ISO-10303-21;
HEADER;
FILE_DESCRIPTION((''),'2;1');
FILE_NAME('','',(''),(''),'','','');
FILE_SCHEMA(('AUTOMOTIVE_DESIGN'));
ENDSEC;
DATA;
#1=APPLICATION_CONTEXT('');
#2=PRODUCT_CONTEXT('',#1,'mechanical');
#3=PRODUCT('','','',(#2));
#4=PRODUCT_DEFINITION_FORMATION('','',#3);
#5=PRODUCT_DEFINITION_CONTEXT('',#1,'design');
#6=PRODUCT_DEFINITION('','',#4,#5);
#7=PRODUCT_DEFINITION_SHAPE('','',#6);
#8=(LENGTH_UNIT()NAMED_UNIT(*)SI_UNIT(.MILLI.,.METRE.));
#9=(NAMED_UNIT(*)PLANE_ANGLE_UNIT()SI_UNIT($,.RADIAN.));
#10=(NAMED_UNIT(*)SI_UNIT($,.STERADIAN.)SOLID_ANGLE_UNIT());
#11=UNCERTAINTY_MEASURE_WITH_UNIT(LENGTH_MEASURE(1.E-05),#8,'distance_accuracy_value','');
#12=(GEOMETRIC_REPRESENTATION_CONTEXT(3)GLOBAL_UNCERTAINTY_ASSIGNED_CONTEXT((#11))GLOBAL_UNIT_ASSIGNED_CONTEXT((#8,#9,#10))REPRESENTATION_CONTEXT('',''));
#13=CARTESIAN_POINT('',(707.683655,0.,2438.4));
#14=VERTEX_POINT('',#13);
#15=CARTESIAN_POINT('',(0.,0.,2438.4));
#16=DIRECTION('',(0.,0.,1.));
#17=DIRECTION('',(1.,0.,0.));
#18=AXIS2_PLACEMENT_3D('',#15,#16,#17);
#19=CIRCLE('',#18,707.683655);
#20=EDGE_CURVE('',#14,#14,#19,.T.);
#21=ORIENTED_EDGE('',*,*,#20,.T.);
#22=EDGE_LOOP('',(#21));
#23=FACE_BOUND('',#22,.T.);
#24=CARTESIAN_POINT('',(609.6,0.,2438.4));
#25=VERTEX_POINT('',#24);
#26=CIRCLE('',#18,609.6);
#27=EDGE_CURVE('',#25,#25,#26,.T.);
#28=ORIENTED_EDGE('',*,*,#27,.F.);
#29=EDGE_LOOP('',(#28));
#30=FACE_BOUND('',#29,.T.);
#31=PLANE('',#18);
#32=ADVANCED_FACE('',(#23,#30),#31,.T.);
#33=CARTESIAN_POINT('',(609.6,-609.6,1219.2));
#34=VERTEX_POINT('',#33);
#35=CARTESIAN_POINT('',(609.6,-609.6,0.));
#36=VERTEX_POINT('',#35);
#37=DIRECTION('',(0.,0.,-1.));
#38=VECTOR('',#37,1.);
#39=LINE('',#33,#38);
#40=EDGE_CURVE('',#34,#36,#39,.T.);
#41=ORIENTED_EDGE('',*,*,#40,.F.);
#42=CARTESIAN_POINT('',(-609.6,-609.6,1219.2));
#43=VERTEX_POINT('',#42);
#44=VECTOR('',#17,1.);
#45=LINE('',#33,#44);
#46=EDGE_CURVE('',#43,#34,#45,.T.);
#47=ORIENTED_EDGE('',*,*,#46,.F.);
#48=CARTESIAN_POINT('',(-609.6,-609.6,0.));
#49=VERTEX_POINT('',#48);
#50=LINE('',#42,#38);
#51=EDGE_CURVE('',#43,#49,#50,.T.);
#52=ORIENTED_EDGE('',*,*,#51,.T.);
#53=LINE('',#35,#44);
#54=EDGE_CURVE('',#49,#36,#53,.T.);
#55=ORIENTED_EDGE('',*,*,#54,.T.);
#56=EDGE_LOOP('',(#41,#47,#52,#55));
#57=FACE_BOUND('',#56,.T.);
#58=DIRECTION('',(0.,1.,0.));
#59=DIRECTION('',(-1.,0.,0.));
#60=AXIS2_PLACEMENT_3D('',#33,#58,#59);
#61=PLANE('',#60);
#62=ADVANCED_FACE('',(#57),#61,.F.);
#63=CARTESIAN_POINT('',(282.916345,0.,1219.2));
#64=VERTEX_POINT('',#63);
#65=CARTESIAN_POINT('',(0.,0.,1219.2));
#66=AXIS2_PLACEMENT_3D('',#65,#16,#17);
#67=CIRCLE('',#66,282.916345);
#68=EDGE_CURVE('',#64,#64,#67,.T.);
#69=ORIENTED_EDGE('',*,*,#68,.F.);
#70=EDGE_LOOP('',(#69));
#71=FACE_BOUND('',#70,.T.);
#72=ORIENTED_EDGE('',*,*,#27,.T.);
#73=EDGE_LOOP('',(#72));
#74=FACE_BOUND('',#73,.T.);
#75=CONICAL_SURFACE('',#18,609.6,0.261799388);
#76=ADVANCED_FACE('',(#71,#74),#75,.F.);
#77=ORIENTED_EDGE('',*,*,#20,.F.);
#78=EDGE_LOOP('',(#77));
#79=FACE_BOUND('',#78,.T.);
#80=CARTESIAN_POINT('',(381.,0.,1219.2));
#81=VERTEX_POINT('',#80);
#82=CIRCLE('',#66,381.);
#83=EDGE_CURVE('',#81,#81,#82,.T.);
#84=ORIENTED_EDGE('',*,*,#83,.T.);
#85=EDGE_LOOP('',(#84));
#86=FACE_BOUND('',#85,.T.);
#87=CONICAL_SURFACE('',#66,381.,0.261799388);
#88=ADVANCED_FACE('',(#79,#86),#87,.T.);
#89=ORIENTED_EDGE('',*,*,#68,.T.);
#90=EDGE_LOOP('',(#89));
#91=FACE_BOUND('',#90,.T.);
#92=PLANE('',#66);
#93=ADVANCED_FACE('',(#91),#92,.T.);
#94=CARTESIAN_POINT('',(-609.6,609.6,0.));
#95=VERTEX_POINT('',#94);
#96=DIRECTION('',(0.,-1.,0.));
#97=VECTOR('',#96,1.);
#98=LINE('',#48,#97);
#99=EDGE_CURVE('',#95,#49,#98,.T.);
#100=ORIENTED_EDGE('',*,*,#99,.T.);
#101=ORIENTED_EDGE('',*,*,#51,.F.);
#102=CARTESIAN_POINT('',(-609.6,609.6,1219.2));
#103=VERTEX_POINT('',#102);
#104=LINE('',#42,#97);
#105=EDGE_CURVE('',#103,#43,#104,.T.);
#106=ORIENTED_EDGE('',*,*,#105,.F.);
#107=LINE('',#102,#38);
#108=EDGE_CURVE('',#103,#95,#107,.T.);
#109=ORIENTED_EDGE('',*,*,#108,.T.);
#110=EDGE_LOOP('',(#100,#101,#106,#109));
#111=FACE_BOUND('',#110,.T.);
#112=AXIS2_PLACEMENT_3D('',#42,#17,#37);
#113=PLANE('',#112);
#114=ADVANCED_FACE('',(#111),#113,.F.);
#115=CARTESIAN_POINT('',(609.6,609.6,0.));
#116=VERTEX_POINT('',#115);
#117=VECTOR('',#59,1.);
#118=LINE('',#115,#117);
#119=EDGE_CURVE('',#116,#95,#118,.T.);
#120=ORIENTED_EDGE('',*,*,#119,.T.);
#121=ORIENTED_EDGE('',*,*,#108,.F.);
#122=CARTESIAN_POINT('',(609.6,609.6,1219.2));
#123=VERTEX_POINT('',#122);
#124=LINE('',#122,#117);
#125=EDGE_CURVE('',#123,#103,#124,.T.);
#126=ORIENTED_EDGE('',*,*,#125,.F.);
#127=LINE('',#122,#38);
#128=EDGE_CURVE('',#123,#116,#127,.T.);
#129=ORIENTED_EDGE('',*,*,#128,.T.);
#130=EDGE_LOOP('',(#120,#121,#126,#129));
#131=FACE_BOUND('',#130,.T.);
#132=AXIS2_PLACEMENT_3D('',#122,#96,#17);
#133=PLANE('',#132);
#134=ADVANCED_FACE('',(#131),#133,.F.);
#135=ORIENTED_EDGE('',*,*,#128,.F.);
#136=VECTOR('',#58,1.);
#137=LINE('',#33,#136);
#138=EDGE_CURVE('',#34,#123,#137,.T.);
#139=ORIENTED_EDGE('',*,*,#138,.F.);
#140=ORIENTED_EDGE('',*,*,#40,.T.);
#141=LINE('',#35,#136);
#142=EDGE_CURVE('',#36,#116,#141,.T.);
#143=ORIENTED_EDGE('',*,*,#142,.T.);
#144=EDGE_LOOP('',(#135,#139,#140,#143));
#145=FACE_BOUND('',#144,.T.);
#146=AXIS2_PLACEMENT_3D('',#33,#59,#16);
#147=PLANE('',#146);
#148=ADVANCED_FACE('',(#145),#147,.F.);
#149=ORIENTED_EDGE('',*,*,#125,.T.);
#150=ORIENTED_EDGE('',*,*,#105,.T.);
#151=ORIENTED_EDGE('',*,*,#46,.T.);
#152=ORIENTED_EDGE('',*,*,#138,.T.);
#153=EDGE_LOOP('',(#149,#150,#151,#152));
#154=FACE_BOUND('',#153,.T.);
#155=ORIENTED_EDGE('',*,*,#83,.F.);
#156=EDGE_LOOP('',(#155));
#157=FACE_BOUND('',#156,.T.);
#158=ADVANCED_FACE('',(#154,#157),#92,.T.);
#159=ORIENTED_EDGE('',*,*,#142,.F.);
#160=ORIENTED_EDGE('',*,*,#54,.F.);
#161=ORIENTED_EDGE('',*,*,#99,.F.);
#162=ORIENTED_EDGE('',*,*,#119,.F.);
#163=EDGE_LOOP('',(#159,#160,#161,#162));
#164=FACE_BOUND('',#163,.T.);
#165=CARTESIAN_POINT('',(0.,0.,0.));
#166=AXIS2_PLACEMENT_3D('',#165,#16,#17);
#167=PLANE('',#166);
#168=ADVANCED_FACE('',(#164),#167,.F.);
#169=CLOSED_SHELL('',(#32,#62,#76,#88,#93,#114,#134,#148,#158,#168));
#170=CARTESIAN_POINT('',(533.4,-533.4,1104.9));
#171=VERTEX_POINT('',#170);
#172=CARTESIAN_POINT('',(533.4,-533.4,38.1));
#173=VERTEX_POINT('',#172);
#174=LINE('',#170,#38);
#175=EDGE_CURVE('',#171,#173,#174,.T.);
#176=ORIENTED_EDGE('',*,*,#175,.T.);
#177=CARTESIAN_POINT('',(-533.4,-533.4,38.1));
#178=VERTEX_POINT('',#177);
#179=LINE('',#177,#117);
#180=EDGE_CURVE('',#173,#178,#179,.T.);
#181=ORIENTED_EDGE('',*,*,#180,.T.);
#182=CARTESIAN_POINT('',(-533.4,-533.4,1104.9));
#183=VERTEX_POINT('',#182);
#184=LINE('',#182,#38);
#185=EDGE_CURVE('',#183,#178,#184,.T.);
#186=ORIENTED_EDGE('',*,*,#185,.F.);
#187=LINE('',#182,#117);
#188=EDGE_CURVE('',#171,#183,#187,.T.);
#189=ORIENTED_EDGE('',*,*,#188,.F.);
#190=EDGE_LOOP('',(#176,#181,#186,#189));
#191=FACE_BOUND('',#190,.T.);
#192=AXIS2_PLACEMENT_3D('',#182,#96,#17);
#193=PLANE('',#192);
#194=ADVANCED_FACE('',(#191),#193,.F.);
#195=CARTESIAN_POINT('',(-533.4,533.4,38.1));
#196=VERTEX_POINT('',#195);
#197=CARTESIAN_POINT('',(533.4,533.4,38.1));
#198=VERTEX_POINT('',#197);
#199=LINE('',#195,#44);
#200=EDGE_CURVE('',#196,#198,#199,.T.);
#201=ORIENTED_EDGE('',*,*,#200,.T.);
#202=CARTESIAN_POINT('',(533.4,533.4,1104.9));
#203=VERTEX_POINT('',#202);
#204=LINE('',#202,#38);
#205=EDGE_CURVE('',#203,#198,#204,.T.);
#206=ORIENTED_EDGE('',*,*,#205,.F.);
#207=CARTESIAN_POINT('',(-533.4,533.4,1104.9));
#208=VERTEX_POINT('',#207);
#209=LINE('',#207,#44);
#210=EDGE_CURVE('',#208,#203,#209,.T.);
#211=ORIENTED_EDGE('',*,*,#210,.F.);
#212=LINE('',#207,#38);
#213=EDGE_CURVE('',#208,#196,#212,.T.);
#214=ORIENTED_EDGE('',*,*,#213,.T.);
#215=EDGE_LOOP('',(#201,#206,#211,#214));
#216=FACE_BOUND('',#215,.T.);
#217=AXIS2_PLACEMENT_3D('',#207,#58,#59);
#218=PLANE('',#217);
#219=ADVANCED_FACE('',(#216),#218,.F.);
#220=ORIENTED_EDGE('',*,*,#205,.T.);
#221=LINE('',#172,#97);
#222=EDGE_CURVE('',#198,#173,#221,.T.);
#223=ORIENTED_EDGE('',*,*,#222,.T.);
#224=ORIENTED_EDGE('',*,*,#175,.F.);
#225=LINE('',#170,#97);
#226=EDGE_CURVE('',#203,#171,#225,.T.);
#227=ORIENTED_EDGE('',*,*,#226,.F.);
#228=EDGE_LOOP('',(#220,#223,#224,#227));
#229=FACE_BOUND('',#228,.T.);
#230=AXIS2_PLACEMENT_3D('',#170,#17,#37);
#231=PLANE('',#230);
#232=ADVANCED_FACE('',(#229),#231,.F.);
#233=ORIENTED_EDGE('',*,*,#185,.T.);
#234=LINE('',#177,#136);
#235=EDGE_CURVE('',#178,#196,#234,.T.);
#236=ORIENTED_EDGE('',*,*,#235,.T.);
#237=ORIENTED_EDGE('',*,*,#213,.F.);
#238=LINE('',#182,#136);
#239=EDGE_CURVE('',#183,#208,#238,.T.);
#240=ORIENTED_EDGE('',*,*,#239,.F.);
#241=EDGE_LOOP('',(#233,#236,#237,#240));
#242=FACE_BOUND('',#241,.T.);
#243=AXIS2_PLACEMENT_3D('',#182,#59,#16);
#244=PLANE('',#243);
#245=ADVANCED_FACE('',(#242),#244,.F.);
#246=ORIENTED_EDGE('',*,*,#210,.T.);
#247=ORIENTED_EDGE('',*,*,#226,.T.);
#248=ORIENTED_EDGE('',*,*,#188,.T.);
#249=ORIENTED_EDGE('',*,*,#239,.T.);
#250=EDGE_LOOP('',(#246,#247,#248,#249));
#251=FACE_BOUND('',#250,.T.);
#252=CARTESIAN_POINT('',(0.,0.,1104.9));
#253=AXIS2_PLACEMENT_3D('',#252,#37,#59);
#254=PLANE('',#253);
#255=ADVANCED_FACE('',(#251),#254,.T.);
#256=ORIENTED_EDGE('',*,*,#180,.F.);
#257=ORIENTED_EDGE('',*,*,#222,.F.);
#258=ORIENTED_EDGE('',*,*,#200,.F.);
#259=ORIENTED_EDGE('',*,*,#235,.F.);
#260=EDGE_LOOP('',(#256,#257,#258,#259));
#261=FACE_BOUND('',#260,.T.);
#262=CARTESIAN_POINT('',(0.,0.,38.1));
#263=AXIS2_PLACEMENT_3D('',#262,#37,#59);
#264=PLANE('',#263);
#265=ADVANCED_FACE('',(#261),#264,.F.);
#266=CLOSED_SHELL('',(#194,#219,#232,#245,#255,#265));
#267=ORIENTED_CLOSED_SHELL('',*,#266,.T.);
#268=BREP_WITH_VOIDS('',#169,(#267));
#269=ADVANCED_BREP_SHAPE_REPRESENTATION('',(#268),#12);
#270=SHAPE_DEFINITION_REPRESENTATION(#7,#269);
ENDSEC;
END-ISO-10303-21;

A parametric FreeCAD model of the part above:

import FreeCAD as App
import Part
import Sketcher
from FreeCAD import Vector
Q = App.Units.Quantity


def faces_at(feature, points):
    """Names of the faces that lie closest to the given points."""
    faces = feature.Shape.Faces
    near = lambda p: min(range(len(faces)), key=lambda i: faces[i].distToShape(Part.Vertex(*p))[0])
    return sorted({f"Face{near(p) + 1}" for p in points})

doc = App.newDocument("Part")
body = doc.addObject("PartDesign::Body", "Body")

# Sketch on XY plane
sketch1 = body.newObject("Sketcher::SketchObject", "Sketch")
sketch1.AttachmentSupport = (doc.getObject("XY_Plane"), [""])
sketch1.MapMode = "FlatFace"
sketch1.addGeometry(Part.LineSegment(Vector(-609.6, 609.6, 0), Vector(-609.6, -609.6, 0)), False)
sketch1.addGeometry(Part.LineSegment(Vector(-609.6, -609.6, 0), Vector(609.6, -609.6, 0)), False)
sketch1.addGeometry(Part.LineSegment(Vector(609.6, -609.6, 0), Vector(609.6, 609.6, 0)), False)
sketch1.addGeometry(Part.LineSegment(Vector(609.6, 609.6, 0), Vector(-609.6, 609.6, 0)), False)
sketch1.addConstraint(Sketcher.Constraint("Coincident", 0, 2, 1, 1))
sketch1.addConstraint(Sketcher.Constraint("Coincident", 1, 2, 2, 1))
sketch1.addConstraint(Sketcher.Constraint("Coincident", 2, 2, 3, 1))
sketch1.addConstraint(Sketcher.Constraint("Coincident", 3, 2, 0, 1))
sketch1.addConstraint(Sketcher.Constraint("Vertical", 0))
sketch1.addConstraint(Sketcher.Constraint("Horizontal", 1))
sketch1.addConstraint(Sketcher.Constraint("Vertical", 2))
sketch1.addConstraint(Sketcher.Constraint("Horizontal", 3))
sketch1.addConstraint(Sketcher.Constraint("Symmetric", 0, 2, 2, 2, -1, 1))
sketch1.addConstraint(Sketcher.Constraint("Equal", 3, 0))
sketch1.addConstraint(Sketcher.Constraint("DistanceX", 1, 1, 1, 2, Q("48 in")))
pad1 = body.newObject("PartDesign::Pad", "Pad")
pad1.Profile = sketch1
pad1.Length = Q("48 in")
body2 = doc.addObject("PartDesign::Body", "Body001")

# Sketch on XY plane
sketch2 = body2.newObject("Sketcher::SketchObject", "Sketch001")
sketch2.AttachmentSupport = (doc.getObject("XY_Plane001"), [""])
sketch2.MapMode = "FlatFace"
sketch2.AttachmentOffset = App.Placement(Vector(0, 0, 48 * 25.4), App.Rotation())
sketch2.addGeometry(Part.Circle(Vector(0, 0, 0), Vector(0, 0, 1), 381), False)
sketch2.addConstraint(Sketcher.Constraint("Coincident", 0, 3, -1, 1))
sketch2.addConstraint(Sketcher.Constraint("Diameter", 0, Q("30 in")))
pad2 = body2.newObject("PartDesign::Pad", "Pad001")
pad2.Profile = sketch2
pad2.Length = Q("48 in")
doc.recompute()

datumplane = body2.newObject("PartDesign::Plane", "DatumPlane")
datumplane.AttachmentSupport = (doc.getObject("XY_Plane001"), [""])
datumplane.MapMode = "FlatFace"
datumplane.AttachmentOffset = App.Placement(Vector(0, 0, 48 * 25.4), App.Rotation())
draft = body2.newObject("PartDesign::Draft", "Draft")
draft.Base = (pad2, faces_at(pad2, [(-381, 0, 1828.8)]))
draft.NeutralPlane = (datumplane, [""])
draft.Angle = 15
draft.Reversed = True
doc.recompute()

boolean = body.newObject("PartDesign::Boolean", "Boolean")
boolean.Type = "Fuse"
boolean.addObjects([body2])
body3 = doc.addObject("PartDesign::Body", "Body002")

# Sketch on XY plane
sketch3 = body3.newObject("Sketcher::SketchObject", "Sketch002")
sketch3.AttachmentSupport = (doc.getObject("XY_Plane002"), [""])
sketch3.MapMode = "FlatFace"
sketch3.AttachmentOffset = App.Placement(Vector(0, 0, 96 * 25.4), App.Rotation())
sketch3.addGeometry(Part.Circle(Vector(0, 0, 0), Vector(0, 0, 1), 609.6), False)
sketch3.addConstraint(Sketcher.Constraint("Coincident", 0, 3, -1, 1))
sketch3.addConstraint(Sketcher.Constraint("Diameter", 0, Q("48 in")))
pad3 = body3.newObject("PartDesign::Pad", "Pad002")
pad3.Profile = sketch3
pad3.Length = Q("48 in")
pad3.Reversed = True
doc.recompute()

datumplane2 = body3.newObject("PartDesign::Plane", "DatumPlane001")
datumplane2.AttachmentSupport = (doc.getObject("XY_Plane002"), [""])
datumplane2.MapMode = "FlatFace"
datumplane2.AttachmentOffset = App.Placement(Vector(0, 0, 96 * 25.4), App.Rotation())
draft2 = body3.newObject("PartDesign::Draft", "Draft001")
draft2.Base = (pad3, faces_at(pad3, [(-609.6, 0, 1828.8)]))
draft2.NeutralPlane = (datumplane2, [""])
draft2.Angle = 15
draft2.Reversed = True
doc.recompute()

boolean2 = body.newObject("PartDesign::Boolean", "Boolean001")
boolean2.Type = "Cut"
boolean2.addObjects([body3])

# Sketch on XY plane
sketch4 = body.newObject("Sketcher::SketchObject", "Sketch003")
sketch4.AttachmentSupport = (doc.getObject("XY_Plane"), [""])
sketch4.MapMode = "FlatFace"
sketch4.AttachmentOffset = App.Placement(Vector(0, 0, 1.5 * 25.4), App.Rotation())
sketch4.addGeometry(Part.LineSegment(Vector(533.4, 533.4, 0), Vector(533.4, -533.4, 0)), False)
sketch4.addGeometry(Part.LineSegment(Vector(533.4, -533.4, 0), Vector(-533.4, -533.4, 0)), False)
sketch4.addGeometry(Part.LineSegment(Vector(-533.4, -533.4, 0), Vector(-533.4, 533.4, 0)), False)
sketch4.addGeometry(Part.LineSegment(Vector(-533.4, 533.4, 0), Vector(533.4, 533.4, 0)), False)
sketch4.addConstraint(Sketcher.Constraint("Coincident", 0, 2, 1, 1))
sketch4.addConstraint(Sketcher.Constraint("Coincident", 1, 2, 2, 1))
sketch4.addConstraint(Sketcher.Constraint("Coincident", 2, 2, 3, 1))
sketch4.addConstraint(Sketcher.Constraint("Coincident", 3, 2, 0, 1))
sketch4.addConstraint(Sketcher.Constraint("Vertical", 0))
sketch4.addConstraint(Sketcher.Constraint("Horizontal", 1))
sketch4.addConstraint(Sketcher.Constraint("Vertical", 2))
sketch4.addConstraint(Sketcher.Constraint("Horizontal", 3))
sketch4.addConstraint(Sketcher.Constraint("Symmetric", 0, 2, 2, 2, -1, 1))
sketch4.addConstraint(Sketcher.Constraint("Equal", 3, 0))
sketch4.addConstraint(Sketcher.Constraint("DistanceX", 1, 2, 1, 1, Q("42 in")))
pocket1 = body.newObject("PartDesign::Pocket", "Pocket")
pocket1.Profile = sketch4
pocket1.Length = Q("42 in")
pocket1.Reversed = True

doc.recompute()
